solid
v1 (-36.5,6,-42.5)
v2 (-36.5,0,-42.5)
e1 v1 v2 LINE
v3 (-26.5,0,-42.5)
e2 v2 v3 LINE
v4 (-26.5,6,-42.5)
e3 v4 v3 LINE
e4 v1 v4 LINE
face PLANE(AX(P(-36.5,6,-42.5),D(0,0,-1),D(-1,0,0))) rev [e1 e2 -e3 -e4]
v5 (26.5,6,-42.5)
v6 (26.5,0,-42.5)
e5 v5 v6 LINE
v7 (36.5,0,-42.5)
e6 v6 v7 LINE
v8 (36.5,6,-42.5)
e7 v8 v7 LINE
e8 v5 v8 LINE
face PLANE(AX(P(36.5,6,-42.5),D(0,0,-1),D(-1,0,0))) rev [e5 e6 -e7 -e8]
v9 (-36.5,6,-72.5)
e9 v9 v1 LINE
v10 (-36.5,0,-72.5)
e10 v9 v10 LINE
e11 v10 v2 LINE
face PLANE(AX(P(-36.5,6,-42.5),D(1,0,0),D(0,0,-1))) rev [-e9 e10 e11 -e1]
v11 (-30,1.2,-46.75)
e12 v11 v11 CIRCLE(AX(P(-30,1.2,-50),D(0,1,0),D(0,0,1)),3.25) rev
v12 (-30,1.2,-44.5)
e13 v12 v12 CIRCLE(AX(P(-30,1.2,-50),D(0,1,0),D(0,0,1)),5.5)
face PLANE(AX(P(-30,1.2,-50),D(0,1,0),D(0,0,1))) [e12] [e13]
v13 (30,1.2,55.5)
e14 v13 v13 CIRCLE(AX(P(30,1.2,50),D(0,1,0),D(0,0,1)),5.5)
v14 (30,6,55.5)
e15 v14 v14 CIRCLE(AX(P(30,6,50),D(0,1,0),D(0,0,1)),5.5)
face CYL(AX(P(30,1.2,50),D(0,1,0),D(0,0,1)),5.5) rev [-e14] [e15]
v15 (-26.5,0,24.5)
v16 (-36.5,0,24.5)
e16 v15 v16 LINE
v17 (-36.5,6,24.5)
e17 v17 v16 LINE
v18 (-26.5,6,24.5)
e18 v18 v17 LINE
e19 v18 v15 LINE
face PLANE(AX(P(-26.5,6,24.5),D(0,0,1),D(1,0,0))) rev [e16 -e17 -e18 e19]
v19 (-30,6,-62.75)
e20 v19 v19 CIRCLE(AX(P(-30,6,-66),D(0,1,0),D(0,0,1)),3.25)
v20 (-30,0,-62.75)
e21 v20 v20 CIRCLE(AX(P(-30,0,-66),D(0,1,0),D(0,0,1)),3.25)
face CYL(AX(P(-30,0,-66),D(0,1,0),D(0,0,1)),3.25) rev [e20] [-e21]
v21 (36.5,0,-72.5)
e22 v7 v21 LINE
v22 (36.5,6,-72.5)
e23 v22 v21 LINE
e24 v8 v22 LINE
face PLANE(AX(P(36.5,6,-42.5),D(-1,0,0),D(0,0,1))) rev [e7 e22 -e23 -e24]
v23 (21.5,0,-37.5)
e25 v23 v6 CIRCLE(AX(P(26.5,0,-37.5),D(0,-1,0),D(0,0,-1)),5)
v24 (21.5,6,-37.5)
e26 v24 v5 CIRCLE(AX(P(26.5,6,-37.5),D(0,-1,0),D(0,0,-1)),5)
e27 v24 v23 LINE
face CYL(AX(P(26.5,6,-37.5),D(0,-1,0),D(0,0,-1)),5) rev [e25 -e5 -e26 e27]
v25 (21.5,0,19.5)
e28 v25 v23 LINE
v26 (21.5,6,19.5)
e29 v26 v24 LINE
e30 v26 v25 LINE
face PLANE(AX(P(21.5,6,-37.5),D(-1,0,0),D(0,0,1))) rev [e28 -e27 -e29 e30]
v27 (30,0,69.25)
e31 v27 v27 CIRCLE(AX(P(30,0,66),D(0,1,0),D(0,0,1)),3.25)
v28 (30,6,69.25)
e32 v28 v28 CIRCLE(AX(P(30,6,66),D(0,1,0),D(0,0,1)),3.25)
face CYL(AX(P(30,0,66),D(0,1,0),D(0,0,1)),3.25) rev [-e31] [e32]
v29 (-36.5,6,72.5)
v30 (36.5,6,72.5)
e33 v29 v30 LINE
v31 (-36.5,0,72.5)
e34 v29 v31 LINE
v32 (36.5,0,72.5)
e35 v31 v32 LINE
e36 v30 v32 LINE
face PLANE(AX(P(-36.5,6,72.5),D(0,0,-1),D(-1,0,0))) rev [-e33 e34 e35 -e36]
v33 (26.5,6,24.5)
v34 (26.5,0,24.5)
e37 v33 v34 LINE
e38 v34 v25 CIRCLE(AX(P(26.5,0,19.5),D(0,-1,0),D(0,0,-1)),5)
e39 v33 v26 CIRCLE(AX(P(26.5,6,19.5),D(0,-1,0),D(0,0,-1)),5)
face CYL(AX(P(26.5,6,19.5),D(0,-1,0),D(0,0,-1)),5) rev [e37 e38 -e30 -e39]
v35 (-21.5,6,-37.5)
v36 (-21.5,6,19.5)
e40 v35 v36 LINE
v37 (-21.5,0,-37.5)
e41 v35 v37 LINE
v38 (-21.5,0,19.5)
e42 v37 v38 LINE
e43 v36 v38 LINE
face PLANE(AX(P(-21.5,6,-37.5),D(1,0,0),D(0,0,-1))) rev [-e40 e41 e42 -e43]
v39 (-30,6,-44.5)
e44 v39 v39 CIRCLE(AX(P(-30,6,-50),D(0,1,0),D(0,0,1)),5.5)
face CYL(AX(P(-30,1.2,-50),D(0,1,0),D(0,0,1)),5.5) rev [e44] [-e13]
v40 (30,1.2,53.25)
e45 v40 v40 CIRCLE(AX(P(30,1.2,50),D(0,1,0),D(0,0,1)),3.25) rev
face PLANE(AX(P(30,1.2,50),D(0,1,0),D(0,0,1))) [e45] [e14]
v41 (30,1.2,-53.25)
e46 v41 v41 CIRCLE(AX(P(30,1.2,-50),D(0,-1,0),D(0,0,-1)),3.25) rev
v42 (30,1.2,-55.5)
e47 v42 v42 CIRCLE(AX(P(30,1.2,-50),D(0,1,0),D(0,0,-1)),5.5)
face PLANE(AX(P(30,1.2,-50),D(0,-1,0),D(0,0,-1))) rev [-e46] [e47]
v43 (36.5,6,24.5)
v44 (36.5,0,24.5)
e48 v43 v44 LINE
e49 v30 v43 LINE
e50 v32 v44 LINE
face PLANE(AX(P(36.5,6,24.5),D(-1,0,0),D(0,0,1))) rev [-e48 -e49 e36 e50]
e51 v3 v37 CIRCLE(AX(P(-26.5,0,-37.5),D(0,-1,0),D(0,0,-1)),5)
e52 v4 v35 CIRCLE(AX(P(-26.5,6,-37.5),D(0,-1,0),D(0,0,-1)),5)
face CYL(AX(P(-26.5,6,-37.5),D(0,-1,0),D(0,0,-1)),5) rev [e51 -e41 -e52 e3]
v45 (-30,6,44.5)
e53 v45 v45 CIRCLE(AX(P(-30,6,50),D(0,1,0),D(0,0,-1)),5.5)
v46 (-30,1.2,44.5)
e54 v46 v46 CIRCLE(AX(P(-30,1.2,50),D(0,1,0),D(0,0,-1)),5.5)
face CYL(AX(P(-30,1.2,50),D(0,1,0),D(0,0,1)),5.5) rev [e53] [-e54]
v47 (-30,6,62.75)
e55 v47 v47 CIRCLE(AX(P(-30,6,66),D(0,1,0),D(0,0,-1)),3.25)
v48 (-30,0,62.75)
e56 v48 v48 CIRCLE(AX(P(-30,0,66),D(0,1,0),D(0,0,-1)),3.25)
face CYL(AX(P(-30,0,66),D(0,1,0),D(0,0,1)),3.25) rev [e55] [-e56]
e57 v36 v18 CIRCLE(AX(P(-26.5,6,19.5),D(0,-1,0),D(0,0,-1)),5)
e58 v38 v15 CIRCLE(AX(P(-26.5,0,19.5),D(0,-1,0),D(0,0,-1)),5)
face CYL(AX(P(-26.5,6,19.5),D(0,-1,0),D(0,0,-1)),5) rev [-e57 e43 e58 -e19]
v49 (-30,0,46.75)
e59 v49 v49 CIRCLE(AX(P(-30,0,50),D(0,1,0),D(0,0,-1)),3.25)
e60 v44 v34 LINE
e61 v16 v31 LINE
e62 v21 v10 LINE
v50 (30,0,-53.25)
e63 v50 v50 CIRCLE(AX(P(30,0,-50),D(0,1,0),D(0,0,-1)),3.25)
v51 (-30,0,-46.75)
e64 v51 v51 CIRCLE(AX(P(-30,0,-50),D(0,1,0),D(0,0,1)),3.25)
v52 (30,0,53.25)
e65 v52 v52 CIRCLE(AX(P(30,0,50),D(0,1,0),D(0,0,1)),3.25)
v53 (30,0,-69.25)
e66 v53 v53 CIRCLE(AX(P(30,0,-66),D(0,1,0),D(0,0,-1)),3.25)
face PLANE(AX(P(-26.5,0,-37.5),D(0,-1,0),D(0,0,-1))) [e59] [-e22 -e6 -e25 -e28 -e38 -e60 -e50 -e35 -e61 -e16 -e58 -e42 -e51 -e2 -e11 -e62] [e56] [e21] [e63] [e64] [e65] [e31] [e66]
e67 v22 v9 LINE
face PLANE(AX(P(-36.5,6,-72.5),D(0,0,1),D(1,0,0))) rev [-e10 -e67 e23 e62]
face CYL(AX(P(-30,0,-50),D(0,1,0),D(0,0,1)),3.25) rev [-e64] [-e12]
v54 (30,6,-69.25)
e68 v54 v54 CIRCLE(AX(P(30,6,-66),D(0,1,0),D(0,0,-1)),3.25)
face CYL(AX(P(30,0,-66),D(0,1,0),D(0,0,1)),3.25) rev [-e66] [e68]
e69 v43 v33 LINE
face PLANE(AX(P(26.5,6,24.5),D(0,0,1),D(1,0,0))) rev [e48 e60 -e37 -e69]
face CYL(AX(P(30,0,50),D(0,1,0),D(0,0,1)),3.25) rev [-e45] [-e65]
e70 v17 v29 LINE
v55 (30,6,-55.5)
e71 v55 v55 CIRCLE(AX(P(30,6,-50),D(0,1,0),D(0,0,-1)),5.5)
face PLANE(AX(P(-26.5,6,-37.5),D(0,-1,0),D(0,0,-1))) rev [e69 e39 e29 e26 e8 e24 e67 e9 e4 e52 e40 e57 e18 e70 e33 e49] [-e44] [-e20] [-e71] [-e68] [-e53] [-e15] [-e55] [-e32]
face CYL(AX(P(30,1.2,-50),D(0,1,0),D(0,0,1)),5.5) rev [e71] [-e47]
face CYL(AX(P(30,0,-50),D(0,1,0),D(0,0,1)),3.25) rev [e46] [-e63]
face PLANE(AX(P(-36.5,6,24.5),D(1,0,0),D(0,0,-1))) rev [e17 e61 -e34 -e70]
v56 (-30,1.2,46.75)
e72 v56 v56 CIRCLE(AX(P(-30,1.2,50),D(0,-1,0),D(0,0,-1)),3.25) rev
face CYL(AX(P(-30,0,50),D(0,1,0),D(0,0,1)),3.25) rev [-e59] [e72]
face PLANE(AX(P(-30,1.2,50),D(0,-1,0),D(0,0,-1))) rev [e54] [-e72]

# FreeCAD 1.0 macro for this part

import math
import FreeCAD as App
import Part
import Sketcher

doc = App.newDocument("Part")
body = doc.addObject("PartDesign::Body", "Body")

# Sketch on XZ plane
sketch1 = body.newObject("Sketcher::SketchObject", "Sketch")
sketch1.AttachmentSupport = (doc.getObject("XZ_Plane"), [""])
sketch1.MapMode = "FlatFace"
sketch1.addGeometry([
    Part.LineSegment(App.Vector(-36.5, 72.5, 0), App.Vector(36.5, 72.5, 0)),  # 0
    Part.LineSegment(App.Vector(36.5, 72.5, 0), App.Vector(36.5, 24.5, 0)),  # 1
    Part.LineSegment(App.Vector(36.5, 24.5, 0), App.Vector(26.5, 24.5, 0)),  # 2
    Part.ArcOfCircle(Part.Circle(App.Vector(26.5, 19.5, 0), App.Vector(0, 0, 1), 5), math.radians(90), math.radians(180)),  # 3
    Part.LineSegment(App.Vector(21.5, 19.5, 0), App.Vector(21.5, -37.5, 0)),  # 4
    Part.ArcOfCircle(Part.Circle(App.Vector(26.5, -37.5, 0), App.Vector(0, 0, 1), 5), math.radians(180), math.radians(270)),  # 5
    Part.LineSegment(App.Vector(26.5, -42.5, 0), App.Vector(36.5, -42.5, 0)),  # 6
    Part.LineSegment(App.Vector(36.5, -42.5, 0), App.Vector(36.5, -72.5, 0)),  # 7
    Part.LineSegment(App.Vector(36.5, -72.5, 0), App.Vector(-36.5, -72.5, 0)),  # 8
    Part.LineSegment(App.Vector(-36.5, -72.5, 0), App.Vector(-36.5, -42.5, 0)),  # 9
    Part.LineSegment(App.Vector(-36.5, -42.5, 0), App.Vector(-26.5, -42.5, 0)),  # 10
    Part.ArcOfCircle(Part.Circle(App.Vector(-26.5, -37.5, 0), App.Vector(0, 0, 1), 5), math.radians(-90), math.radians(0)),  # 11
    Part.LineSegment(App.Vector(-21.5, -37.5, 0), App.Vector(-21.5, 19.5, 0)),  # 12
    Part.ArcOfCircle(Part.Circle(App.Vector(-26.5, 19.5, 0), App.Vector(0, 0, 1), 5), math.radians(0), math.radians(90)),  # 13
    Part.LineSegment(App.Vector(-26.5, 24.5, 0), App.Vector(-36.5, 24.5, 0)),  # 14
    Part.LineSegment(App.Vector(-36.5, 24.5, 0), App.Vector(-36.5, 72.5, 0)),  # 15
], False)
sketch1.addConstraint([
    Sketcher.Constraint("Coincident", 0, 2, 1, 1),
    Sketcher.Constraint("Coincident", 1, 2, 2, 1),
    Sketcher.Constraint("Tangent", 2, 2, 3, 1),
    Sketcher.Constraint("Tangent", 3, 2, 4, 1),
    Sketcher.Constraint("Tangent", 4, 2, 5, 1),
    Sketcher.Constraint("Tangent", 5, 2, 6, 1),
    Sketcher.Constraint("Coincident", 6, 2, 7, 1),
    Sketcher.Constraint("Coincident", 7, 2, 8, 1),
    Sketcher.Constraint("Coincident", 8, 2, 9, 1),
    Sketcher.Constraint("Coincident", 9, 2, 10, 1),
    Sketcher.Constraint("Tangent", 10, 2, 11, 1),
    Sketcher.Constraint("Tangent", 11, 2, 12, 1),
    Sketcher.Constraint("Tangent", 12, 2, 13, 1),
    Sketcher.Constraint("Tangent", 13, 2, 14, 1),
    Sketcher.Constraint("Coincident", 14, 2, 15, 1),
    Sketcher.Constraint("Coincident", 15, 2, 0, 1),
    Sketcher.Constraint("Horizontal", 0),
    Sketcher.Constraint("Vertical", 1),
    Sketcher.Constraint("Horizontal", 2),
    Sketcher.Constraint("Vertical", 4),
    Sketcher.Constraint("Horizontal", 6),
    Sketcher.Constraint("Vertical", 7),
    Sketcher.Constraint("Horizontal", 8),
    Sketcher.Constraint("Vertical", 9),
    Sketcher.Constraint("Horizontal", 10),
    Sketcher.Constraint("Vertical", 12),
    Sketcher.Constraint("Horizontal", 14),
    Sketcher.Constraint("Vertical", 15),
    Sketcher.Constraint("Equal", 3, 5),
    Sketcher.Constraint("Equal", 5, 11),
    Sketcher.Constraint("Equal", 11, 13),
    Sketcher.Constraint("Symmetric", 0, 2, 8, 2, -1, 1),
    Sketcher.Constraint("Symmetric", 5, 3, 11, 3, -2),
    Sketcher.Constraint("Symmetric", 1, 2, 14, 2, -2),
    Sketcher.Constraint("Vertical", 1, 2, 6, 2),
    Sketcher.Constraint("Radius", 3, 5.0),
    Sketcher.Constraint("DistanceX", 0, 1, 0, 2, 73.0),
    Sketcher.Constraint("DistanceX", 2, 2, 2, 1, 10.0),
    Sketcher.Constraint("DistanceY", 1, 2, 1, 1, 48.0),
    Sketcher.Constraint("DistanceY", 4, 2, 4, 1, 57.0),
    Sketcher.Constraint("DistanceY", 7, 2, 7, 1, 30.0),
])
pad1 = body.newObject("PartDesign::Pad", "Pad")
pad1.Profile = sketch1
pad1.Length = 6
pad1.Reversed = True

# Sketch on XZ plane
sketch2 = body.newObject("Sketcher::SketchObject", "Sketch001")
sketch2.AttachmentSupport = (doc.getObject("XZ_Plane"), [""])
sketch2.MapMode = "FlatFace"
sketch2.AttachmentOffset = App.Placement(App.Vector(0, 0, -6), App.Rotation())
sketch2.addGeometry([
    Part.Circle(App.Vector(-30, -66, 0), App.Vector(0, 0, 1), 3.25),  # 0
    Part.Circle(App.Vector(-30, -50, 0), App.Vector(0, 0, 1), 3.25),  # 1
    Part.Circle(App.Vector(30, -50, 0), App.Vector(0, 0, 1), 3.25),  # 2
    Part.Circle(App.Vector(30, -66, 0), App.Vector(0, 0, 1), 3.25),  # 3
    Part.Circle(App.Vector(30, 50, 0), App.Vector(0, 0, 1), 3.25),  # 4
    Part.Circle(App.Vector(30, 66, 0), App.Vector(0, 0, 1), 3.25),  # 5
    Part.Circle(App.Vector(-30, 50, 0), App.Vector(0, 0, 1), 3.25),  # 6
    Part.Circle(App.Vector(-30, 66, 0), App.Vector(0, 0, 1), 3.25),  # 7
], False)
sketch2.addConstraint([
    Sketcher.Constraint("Equal", 0, 1),
    Sketcher.Constraint("Equal", 1, 2),
    Sketcher.Constraint("Equal", 2, 3),
    Sketcher.Constraint("Equal", 3, 4),
    Sketcher.Constraint("Equal", 4, 5),
    Sketcher.Constraint("Equal", 5, 6),
    Sketcher.Constraint("Equal", 6, 7),
    Sketcher.Constraint("Symmetric", 1, 3, 4, 3, -1, 1),
    Sketcher.Constraint("Symmetric", 0, 3, 5, 3, -1, 1),
    Sketcher.Constraint("Symmetric", 2, 3, 6, 3, -1, 1),
    Sketcher.Constraint("Symmetric", 3, 3, 7, 3, -1, 1),
    Sketcher.Constraint("Symmetric", 1, 3, 2, 3, -2),
    Sketcher.Constraint("Symmetric", 0, 3, 3, 3, -2),
    Sketcher.Constraint("Vertical", 0, 3, 1, 3),
    Sketcher.Constraint("Diameter", 0, 6.5),
    Sketcher.Constraint("DistanceX", 0, 3, -1, 1, 30.0),
    Sketcher.Constraint("DistanceY", 0, 3, -1, 1, 66.0),
    Sketcher.Constraint("DistanceY", 1, 3, -1, 1, 50.0),
])
pocket1 = body.newObject("PartDesign::Pocket", "Pocket")
pocket1.Profile = sketch2
pocket1.Type = "ThroughAll"
pocket1.Reversed = True

# Sketch on XZ plane
sketch3 = body.newObject("Sketcher::SketchObject", "Sketch002")
sketch3.AttachmentSupport = (doc.getObject("XZ_Plane"), [""])
sketch3.MapMode = "FlatFace"
sketch3.AttachmentOffset = App.Placement(App.Vector(0, 0, -6), App.Rotation())
sketch3.addGeometry([
    Part.Circle(App.Vector(-30, -50, 0), App.Vector(0, 0, 1), 5.5),
    Part.Circle(App.Vector(30, -50, 0), App.Vector(0, 0, 1), 5.5),
    Part.Circle(App.Vector(30, 50, 0), App.Vector(0, 0, 1), 5.5),
    Part.Circle(App.Vector(-30, 50, 0), App.Vector(0, 0, 1), 5.5),
], False)
sketch3.addConstraint([
    Sketcher.Constraint("Equal", 0, 1),
    Sketcher.Constraint("Equal", 1, 2),
    Sketcher.Constraint("Equal", 2, 3),
    Sketcher.Constraint("Symmetric", 0, 3, 2, 3, -1, 1),
    Sketcher.Constraint("Symmetric", 1, 3, 3, 3, -1, 1),
    Sketcher.Constraint("Symmetric", 0, 3, 1, 3, -2),
    Sketcher.Constraint("Diameter", 0, 11.0),
    Sketcher.Constraint("DistanceX", 0, 3, -1, 1, 30.0),
    Sketcher.Constraint("DistanceY", 0, 3, -1, 1, 50.0),
])
pocket2 = body.newObject("PartDesign::Pocket", "Pocket001")
pocket2.Profile = sketch3
pocket2.Length = 4.8
pocket2.Reversed = True

doc.recompute()
